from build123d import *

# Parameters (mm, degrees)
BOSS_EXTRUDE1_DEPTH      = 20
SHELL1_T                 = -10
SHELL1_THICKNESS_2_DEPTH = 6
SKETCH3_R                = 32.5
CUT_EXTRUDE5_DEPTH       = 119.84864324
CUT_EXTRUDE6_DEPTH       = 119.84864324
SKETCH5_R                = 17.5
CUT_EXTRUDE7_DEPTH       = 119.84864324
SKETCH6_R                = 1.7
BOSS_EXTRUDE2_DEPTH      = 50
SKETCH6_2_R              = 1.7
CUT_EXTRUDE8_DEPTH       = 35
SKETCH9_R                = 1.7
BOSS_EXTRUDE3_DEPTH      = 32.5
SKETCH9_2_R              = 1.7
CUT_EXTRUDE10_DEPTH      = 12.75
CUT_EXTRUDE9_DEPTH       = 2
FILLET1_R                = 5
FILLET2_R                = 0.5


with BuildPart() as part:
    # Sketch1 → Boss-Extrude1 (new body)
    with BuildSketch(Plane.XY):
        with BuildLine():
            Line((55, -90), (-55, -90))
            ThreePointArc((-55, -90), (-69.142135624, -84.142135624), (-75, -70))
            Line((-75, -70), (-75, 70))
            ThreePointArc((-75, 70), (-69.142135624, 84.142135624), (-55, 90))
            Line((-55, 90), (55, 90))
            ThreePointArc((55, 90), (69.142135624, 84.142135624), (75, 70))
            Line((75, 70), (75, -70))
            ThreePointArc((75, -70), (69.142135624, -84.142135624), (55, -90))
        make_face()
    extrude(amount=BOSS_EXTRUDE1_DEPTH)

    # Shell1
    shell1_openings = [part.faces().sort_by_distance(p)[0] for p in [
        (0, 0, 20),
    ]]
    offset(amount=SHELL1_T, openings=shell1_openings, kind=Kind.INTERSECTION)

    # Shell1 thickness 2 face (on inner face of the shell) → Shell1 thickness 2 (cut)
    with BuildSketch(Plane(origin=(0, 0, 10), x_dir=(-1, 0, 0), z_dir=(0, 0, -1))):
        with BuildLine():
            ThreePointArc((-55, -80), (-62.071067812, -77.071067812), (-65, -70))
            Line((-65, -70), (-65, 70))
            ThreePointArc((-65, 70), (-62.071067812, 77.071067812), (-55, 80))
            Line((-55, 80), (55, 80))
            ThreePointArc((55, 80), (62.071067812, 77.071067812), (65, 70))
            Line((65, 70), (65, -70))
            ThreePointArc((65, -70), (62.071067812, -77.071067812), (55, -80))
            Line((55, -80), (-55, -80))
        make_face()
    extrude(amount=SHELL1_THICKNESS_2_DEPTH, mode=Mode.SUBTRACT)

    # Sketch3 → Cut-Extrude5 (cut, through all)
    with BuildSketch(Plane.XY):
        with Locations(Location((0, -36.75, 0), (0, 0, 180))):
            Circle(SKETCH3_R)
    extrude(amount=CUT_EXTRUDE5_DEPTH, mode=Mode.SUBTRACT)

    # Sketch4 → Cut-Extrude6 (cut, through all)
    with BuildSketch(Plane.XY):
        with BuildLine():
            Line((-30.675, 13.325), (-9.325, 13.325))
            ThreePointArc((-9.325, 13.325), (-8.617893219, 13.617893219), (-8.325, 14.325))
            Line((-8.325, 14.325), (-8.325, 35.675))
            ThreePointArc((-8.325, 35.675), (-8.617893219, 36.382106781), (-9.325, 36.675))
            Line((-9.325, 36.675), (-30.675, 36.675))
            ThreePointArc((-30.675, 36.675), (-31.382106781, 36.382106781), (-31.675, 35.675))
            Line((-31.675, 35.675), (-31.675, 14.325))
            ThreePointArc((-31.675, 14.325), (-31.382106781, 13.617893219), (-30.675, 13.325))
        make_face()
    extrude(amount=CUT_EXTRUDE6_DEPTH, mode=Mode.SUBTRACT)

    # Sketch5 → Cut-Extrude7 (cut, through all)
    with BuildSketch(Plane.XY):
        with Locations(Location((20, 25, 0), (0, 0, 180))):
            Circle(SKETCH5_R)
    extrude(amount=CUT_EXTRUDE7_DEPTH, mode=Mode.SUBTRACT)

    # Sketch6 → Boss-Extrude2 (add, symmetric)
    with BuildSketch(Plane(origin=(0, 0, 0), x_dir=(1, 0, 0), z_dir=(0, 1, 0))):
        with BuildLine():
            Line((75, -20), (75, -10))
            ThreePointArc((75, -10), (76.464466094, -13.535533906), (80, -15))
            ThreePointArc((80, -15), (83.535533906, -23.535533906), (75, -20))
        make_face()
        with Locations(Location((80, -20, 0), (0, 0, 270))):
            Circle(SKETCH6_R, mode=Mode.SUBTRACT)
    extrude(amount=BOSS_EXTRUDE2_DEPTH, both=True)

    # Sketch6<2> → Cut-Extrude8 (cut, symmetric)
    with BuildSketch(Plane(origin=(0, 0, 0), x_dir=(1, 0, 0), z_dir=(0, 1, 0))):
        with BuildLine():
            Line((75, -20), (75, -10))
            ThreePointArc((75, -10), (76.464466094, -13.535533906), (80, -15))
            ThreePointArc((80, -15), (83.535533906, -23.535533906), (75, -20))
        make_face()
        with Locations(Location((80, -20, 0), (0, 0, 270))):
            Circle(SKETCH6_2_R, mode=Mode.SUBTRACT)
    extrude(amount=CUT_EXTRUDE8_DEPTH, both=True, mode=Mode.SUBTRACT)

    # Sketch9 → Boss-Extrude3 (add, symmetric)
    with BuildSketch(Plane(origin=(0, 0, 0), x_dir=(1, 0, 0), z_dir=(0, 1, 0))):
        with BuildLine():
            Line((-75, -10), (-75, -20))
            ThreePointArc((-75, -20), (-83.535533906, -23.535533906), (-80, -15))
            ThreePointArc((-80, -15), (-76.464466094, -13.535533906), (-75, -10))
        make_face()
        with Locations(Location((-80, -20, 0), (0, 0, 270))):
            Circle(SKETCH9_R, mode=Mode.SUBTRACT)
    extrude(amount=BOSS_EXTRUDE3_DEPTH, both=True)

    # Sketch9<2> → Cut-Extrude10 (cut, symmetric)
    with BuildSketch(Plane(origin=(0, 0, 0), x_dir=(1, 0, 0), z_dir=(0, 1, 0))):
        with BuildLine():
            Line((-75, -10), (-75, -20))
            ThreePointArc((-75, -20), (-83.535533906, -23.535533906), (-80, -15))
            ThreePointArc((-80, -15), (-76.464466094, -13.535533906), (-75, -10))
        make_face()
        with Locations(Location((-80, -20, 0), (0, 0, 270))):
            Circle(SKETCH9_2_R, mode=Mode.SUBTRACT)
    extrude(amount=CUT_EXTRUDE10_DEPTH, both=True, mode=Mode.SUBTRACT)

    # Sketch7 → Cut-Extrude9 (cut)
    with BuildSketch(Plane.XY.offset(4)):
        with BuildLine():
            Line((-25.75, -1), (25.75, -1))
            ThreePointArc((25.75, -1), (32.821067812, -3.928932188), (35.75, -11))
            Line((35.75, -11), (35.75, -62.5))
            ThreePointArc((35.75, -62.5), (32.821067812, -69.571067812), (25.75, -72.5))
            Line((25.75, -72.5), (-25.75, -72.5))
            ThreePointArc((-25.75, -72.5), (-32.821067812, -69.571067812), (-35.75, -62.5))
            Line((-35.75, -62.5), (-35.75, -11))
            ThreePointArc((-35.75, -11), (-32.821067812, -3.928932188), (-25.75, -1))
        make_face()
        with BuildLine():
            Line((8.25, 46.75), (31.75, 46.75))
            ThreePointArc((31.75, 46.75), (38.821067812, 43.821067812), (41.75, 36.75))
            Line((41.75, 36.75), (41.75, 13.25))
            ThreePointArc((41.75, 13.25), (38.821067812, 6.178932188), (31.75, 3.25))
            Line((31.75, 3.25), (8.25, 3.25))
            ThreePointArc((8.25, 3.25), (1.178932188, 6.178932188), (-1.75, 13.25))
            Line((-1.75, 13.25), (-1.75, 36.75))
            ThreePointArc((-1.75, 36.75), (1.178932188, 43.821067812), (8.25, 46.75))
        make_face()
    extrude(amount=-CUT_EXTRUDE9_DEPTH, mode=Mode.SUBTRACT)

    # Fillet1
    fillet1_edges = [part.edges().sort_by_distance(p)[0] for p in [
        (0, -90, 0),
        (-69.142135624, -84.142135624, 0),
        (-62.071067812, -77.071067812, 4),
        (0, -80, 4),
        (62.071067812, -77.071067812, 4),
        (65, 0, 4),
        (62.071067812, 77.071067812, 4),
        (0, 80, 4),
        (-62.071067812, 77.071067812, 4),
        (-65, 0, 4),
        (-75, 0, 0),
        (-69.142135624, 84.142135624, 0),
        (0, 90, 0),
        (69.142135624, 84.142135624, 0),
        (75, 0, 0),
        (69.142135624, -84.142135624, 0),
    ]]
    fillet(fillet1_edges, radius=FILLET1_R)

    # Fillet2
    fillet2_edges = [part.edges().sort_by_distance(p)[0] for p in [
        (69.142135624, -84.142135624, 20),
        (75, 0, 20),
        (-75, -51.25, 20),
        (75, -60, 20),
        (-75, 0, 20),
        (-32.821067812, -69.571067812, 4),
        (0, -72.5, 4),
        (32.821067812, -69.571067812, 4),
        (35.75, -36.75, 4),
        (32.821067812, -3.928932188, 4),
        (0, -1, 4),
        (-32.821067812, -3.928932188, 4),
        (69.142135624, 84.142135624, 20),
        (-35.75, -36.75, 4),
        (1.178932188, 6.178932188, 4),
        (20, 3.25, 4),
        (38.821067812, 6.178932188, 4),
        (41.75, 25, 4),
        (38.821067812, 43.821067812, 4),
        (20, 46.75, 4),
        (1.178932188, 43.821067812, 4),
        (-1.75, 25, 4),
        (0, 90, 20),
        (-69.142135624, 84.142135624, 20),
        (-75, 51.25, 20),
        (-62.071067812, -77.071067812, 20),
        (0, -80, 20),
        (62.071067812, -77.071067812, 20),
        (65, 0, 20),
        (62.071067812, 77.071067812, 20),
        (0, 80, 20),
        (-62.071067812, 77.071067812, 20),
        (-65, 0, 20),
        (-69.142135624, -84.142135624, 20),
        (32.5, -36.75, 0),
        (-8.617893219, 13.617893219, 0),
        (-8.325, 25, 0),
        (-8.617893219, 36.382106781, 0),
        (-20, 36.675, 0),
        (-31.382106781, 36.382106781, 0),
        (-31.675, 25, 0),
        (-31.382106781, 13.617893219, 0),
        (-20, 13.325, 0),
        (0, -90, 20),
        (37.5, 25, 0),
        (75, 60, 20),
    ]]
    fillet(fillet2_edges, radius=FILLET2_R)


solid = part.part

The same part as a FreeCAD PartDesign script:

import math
import FreeCAD as App
import Part
import Sketcher
Q = App.Units.Quantity


def edges_at(feature, points):
    """Names of the edges that pass closest to the given points."""
    edges = feature.Shape.Edges
    near = lambda p: min(range(len(edges)), key=lambda i: edges[i].distToShape(Part.Vertex(*p))[0])
    return sorted({f"Edge{near(p) + 1}" for p in points})


def faces_at(feature, points):
    """Names of the faces that lie closest to the given points."""
    faces = feature.Shape.Faces
    near = lambda p: min(range(len(faces)), key=lambda i: faces[i].distToShape(Part.Vertex(*p))[0])
    return sorted({f"Face{near(p) + 1}" for p in points})

doc = App.newDocument("Part")
body = doc.addObject("PartDesign::Body", "Body")

# Sketch on XY plane
sketch1 = body.newObject("Sketcher::SketchObject", "Sketch")
sketch1.AttachmentSupport = (doc.getObject("XY_Plane"), [""])
sketch1.MapMode = "FlatFace"
sketch1.addGeometry([
    Part.LineSegment(App.Vector(-55, -90, 0), App.Vector(55, -90, 0)),  # 0
    Part.ArcOfCircle(Part.Circle(App.Vector(55, -70, 0), App.Vector(0, 0, 1), 20), math.radians(-90), math.radians(0)),  # 1
    Part.LineSegment(App.Vector(75, -70, 0), App.Vector(75, 70, 0)),  # 2
    Part.ArcOfCircle(Part.Circle(App.Vector(55, 70, 0), App.Vector(0, 0, 1), 20), math.radians(0), math.radians(90)),  # 3
    Part.LineSegment(App.Vector(55, 90, 0), App.Vector(-55, 90, 0)),  # 4
    Part.ArcOfCircle(Part.Circle(App.Vector(-55, 70, 0), App.Vector(0, 0, 1), 20), math.radians(90), math.radians(180)),  # 5
    Part.LineSegment(App.Vector(-75, 70, 0), App.Vector(-75, -70, 0)),  # 6
    Part.ArcOfCircle(Part.Circle(App.Vector(-55, -70, 0), App.Vector(0, 0, 1), 20), math.radians(180), math.radians(270)),  # 7
], False)
sketch1.addConstraint([
    Sketcher.Constraint("Tangent", 0, 2, 1, 1),
    Sketcher.Constraint("Tangent", 1, 2, 2, 1),
    Sketcher.Constraint("Tangent", 2, 2, 3, 1),
    Sketcher.Constraint("Tangent", 3, 2, 4, 1),
    Sketcher.Constraint("Tangent", 4, 2, 5, 1),
    Sketcher.Constraint("Tangent", 5, 2, 6, 1),
    Sketcher.Constraint("Tangent", 6, 2, 7, 1),
    Sketcher.Constraint("Tangent", 7, 2, 0, 1),
    Sketcher.Constraint("Horizontal", 0),
    Sketcher.Constraint("Vertical", 2),
    Sketcher.Constraint("Horizontal", 4),
    Sketcher.Constraint("Vertical", 6),
    Sketcher.Constraint("Equal", 1, 3),
    Sketcher.Constraint("Equal", 3, 5),
    Sketcher.Constraint("Equal", 5, 7),
    Sketcher.Constraint("Symmetric", 1, 3, 5, 3, -1, 1),
    Sketcher.Constraint("Radius", 1, Q("20 mm")),
    Sketcher.Constraint("DistanceX", 0, 1, 0, 2, Q("110 mm")),
    Sketcher.Constraint("DistanceY", 2, 1, 2, 2, Q("140 mm")),
])
pad1 = body.newObject("PartDesign::Pad", "Pad")
pad1.Profile = sketch1
pad1.Length = 20
doc.recompute()

thickness = body.newObject("PartDesign::Thickness", "Thickness")
thickness.Base = (pad1, faces_at(pad1, [(0, 0, 20)]))
thickness.Value = 10
thickness.Reversed = True
thickness.Join = "Intersection"

# Sketch on XY plane
sketch2 = body.newObject("Sketcher::SketchObject", "Sketch001")
sketch2.AttachmentSupport = (doc.getObject("XY_Plane"), [""])
sketch2.MapMode = "FlatFace"
sketch2.AttachmentOffset = App.Placement(App.Vector(0, 0, 10), App.Rotation())
sketch2.addGeometry([
    Part.ArcOfCircle(Part.Circle(App.Vector(55, -70, 0), App.Vector(0, 0, 1), 10), math.radians(-90), math.radians(0)),  # 0
    Part.LineSegment(App.Vector(55, -80, 0), App.Vector(-55, -80, 0)),  # 1
    Part.ArcOfCircle(Part.Circle(App.Vector(-55, -70, 0), App.Vector(0, 0, 1), 10), math.radians(180), math.radians(270)),  # 2
    Part.LineSegment(App.Vector(-65, -70, 0), App.Vector(-65, 70, 0)),  # 3
    Part.ArcOfCircle(Part.Circle(App.Vector(-55, 70, 0), App.Vector(0, 0, 1), 10), math.radians(90), math.radians(180)),  # 4
    Part.LineSegment(App.Vector(-55, 80, 0), App.Vector(55, 80, 0)),  # 5
    Part.ArcOfCircle(Part.Circle(App.Vector(55, 70, 0), App.Vector(0, 0, 1), 10), math.radians(0), math.radians(90)),  # 6
    Part.LineSegment(App.Vector(65, 70, 0), App.Vector(65, -70, 0)),  # 7
], False)
sketch2.addConstraint([
    Sketcher.Constraint("Tangent", 0, 1, 1, 1),
    Sketcher.Constraint("Tangent", 1, 2, 2, 2),
    Sketcher.Constraint("Tangent", 2, 1, 3, 1),
    Sketcher.Constraint("Tangent", 3, 2, 4, 2),
    Sketcher.Constraint("Tangent", 4, 1, 5, 1),
    Sketcher.Constraint("Tangent", 5, 2, 6, 2),
    Sketcher.Constraint("Tangent", 6, 1, 7, 1),
    Sketcher.Constraint("Tangent", 7, 2, 0, 2),
    Sketcher.Constraint("Horizontal", 1),
    Sketcher.Constraint("Vertical", 3),
    Sketcher.Constraint("Horizontal", 5),
    Sketcher.Constraint("Vertical", 7),
    Sketcher.Constraint("Equal", 0, 2),
    Sketcher.Constraint("Equal", 2, 4),
    Sketcher.Constraint("Equal", 4, 6),
    Sketcher.Constraint("Symmetric", 0, 3, 4, 3, -1, 1),
    Sketcher.Constraint("Radius", 0, Q("10 mm")),
    Sketcher.Constraint("DistanceX", 1, 2, 1, 1, Q("110 mm")),
    Sketcher.Constraint("DistanceY", 3, 1, 3, 2, Q("140 mm")),
])
pocket1 = body.newObject("PartDesign::Pocket", "Pocket")
pocket1.Profile = sketch2
pocket1.Length = 6

# Sketch on XY plane
sketch3 = body.newObject("Sketcher::SketchObject", "Sketch002")
sketch3.AttachmentSupport = (doc.getObject("XY_Plane"), [""])
sketch3.MapMode = "FlatFace"
sketch3.addGeometry(Part.Circle(App.Vector(0, -36.75, 0), App.Vector(0, 0, 1), 32.5), False)
sketch3.addConstraint([
    Sketcher.Constraint("PointOnObject", 0, 3, -2),
    Sketcher.Constraint("Diameter", 0, Q("65 mm")),
    Sketcher.Constraint("DistanceY", 0, 3, -1, 1, Q("36.75 mm")),
])
pocket2 = body.newObject("PartDesign::Pocket", "Pocket001")
pocket2.Profile = sketch3
pocket2.Type = "ThroughAll"
pocket2.Reversed = True

# Sketch on XY plane
sketch4 = body.newObject("Sketcher::SketchObject", "Sketch003")
sketch4.AttachmentSupport = (doc.getObject("XY_Plane"), [""])
sketch4.MapMode = "FlatFace"
sketch4.addGeometry([
    Part.LineSegment(App.Vector(-30.675, 13.325, 0), App.Vector(-9.325, 13.325, 0)),  # 0
    Part.ArcOfCircle(Part.Circle(App.Vector(-9.325, 14.325, 0), App.Vector(0, 0, 1), 1), math.radians(-90), math.radians(0)),  # 1
    Part.LineSegment(App.Vector(-8.325, 14.325, 0), App.Vector(-8.325, 35.675, 0)),  # 2
    Part.ArcOfCircle(Part.Circle(App.Vector(-9.325, 35.675, 0), App.Vector(0, 0, 1), 1), math.radians(0), math.radians(90)),  # 3
    Part.LineSegment(App.Vector(-9.325, 36.675, 0), App.Vector(-30.675, 36.675, 0)),  # 4
    Part.ArcOfCircle(Part.Circle(App.Vector(-30.675, 35.675, 0), App.Vector(0, 0, 1), 1), math.radians(90), math.radians(180)),  # 5
    Part.LineSegment(App.Vector(-31.675, 35.675, 0), App.Vector(-31.675, 14.325, 0)),  # 6
    Part.ArcOfCircle(Part.Circle(App.Vector(-30.675, 14.325, 0), App.Vector(0, 0, 1), 1), math.radians(-180), math.radians(-90)),  # 7
], False)
sketch4.addConstraint([
    Sketcher.Constraint("Tangent", 0, 2, 1, 1),
    Sketcher.Constraint("Tangent", 1, 2, 2, 1),
    Sketcher.Constraint("Tangent", 2, 2, 3, 1),
    Sketcher.Constraint("Tangent", 3, 2, 4, 1),
    Sketcher.Constraint("Tangent", 4, 2, 5, 1),
    Sketcher.Constraint("Tangent", 5, 2, 6, 1),
    Sketcher.Constraint("Tangent", 6, 2, 7, 1),
    Sketcher.Constraint("Tangent", 7, 2, 0, 1),
    Sketcher.Constraint("Horizontal", 0),
    Sketcher.Constraint("Vertical", 2),
    Sketcher.Constraint("Horizontal", 4),
    Sketcher.Constraint("Vertical", 6),
    Sketcher.Constraint("Equal", 1, 3),
    Sketcher.Constraint("Equal", 3, 5),
    Sketcher.Constraint("Equal", 5, 7),
    Sketcher.Constraint("Equal", 4, 2),
    Sketcher.Constraint("Radius", 1, Q("1 mm")),
    Sketcher.Constraint("DistanceX", 0, 1, 0, 2, Q("21.35 mm")),
    Sketcher.Constraint("DistanceX", 1, 3, -1, 1, Q("9.325 mm")),
    Sketcher.Constraint("DistanceY", -1, 1, 1, 3, Q("14.325 mm")),
])
pocket3 = body.newObject("PartDesign::Pocket", "Pocket002")
pocket3.Profile = sketch4
pocket3.Type = "ThroughAll"
pocket3.Reversed = True

# Sketch on XY plane
sketch5 = body.newObject("Sketcher::SketchObject", "Sketch004")
sketch5.AttachmentSupport = (doc.getObject("XY_Plane"), [""])
sketch5.MapMode = "FlatFace"
sketch5.addGeometry(Part.Circle(App.Vector(20, 25, 0), App.Vector(0, 0, 1), 17.5), False)
sketch5.addConstraint([
    Sketcher.Constraint("Diameter", 0, Q("35 mm")),
    Sketcher.Constraint("DistanceX", -1, 1, 0, 3, Q("20 mm")),
    Sketcher.Constraint("DistanceY", -1, 1, 0, 3, Q("25 mm")),
])
pocket4 = body.newObject("PartDesign::Pocket", "Pocket003")
pocket4.Profile = sketch5
pocket4.Type = "ThroughAll"
pocket4.Reversed = True

# Sketch on XZ plane
sketch6 = body.newObject("Sketcher::SketchObject", "Sketch005")
sketch6.AttachmentSupport = (doc.getObject("XZ_Plane"), [""])
sketch6.MapMode = "FlatFace"
sketch6.addGeometry([
    Part.LineSegment(App.Vector(75, 10, 0), App.Vector(75, 20, 0)),
    Part.ArcOfCircle(Part.Circle(App.Vector(80, 20, 0), App.Vector(0, 0, 1), 5), math.radians(-90), math.radians(180)),
    Part.ArcOfCircle(Part.Circle(App.Vector(80, 10, 0), App.Vector(0, 0, 1), 5), math.radians(90), math.radians(180)),
    Part.Circle(App.Vector(80, 20, 0), App.Vector(0, 0, 1), 1.7),
], False)
sketch6.addConstraint([
    Sketcher.Constraint("Tangent", 0, 2, 1, 2),
    Sketcher.Constraint("Tangent", 1, 1, 2, 1),
    Sketcher.Constraint("Tangent", 2, 2, 0, 1),
    Sketcher.Constraint("Vertical", 0),
    Sketcher.Constraint("Coincident", 3, 3, 1, 3),
    Sketcher.Constraint("Equal", 1, 2),
    Sketcher.Constraint("Radius", 1, Q("5 mm")),
    Sketcher.Constraint("Diameter", 3, Q("3.4 mm")),
    Sketcher.Constraint("DistanceX", -1, 1, 1, 3, Q("80 mm")),
    Sketcher.Constraint("DistanceY", -1, 1, 1, 3, Q("20 mm")),
])
pad2 = body.newObject("PartDesign::Pad", "Pad001")
pad2.Profile = sketch6
pad2.Length = 100
pad2.Midplane = True

# Sketch on XZ plane
sketch7 = body.newObject("Sketcher::SketchObject", "Sketch006")
sketch7.AttachmentSupport = (doc.getObject("XZ_Plane"), [""])
sketch7.MapMode = "FlatFace"
sketch7.addGeometry([
    Part.LineSegment(App.Vector(75, 10, 0), App.Vector(75, 20, 0)),
    Part.ArcOfCircle(Part.Circle(App.Vector(80, 20, 0), App.Vector(0, 0, 1), 5), math.radians(-90), math.radians(180)),
    Part.ArcOfCircle(Part.Circle(App.Vector(80, 10, 0), App.Vector(0, 0, 1), 5), math.radians(90), math.radians(180)),
    Part.Circle(App.Vector(80, 20, 0), App.Vector(0, 0, 1), 1.7),
], False)
sketch7.addConstraint([
    Sketcher.Constraint("Tangent", 0, 2, 1, 2),
    Sketcher.Constraint("Tangent", 1, 1, 2, 1),
    Sketcher.Constraint("Tangent", 2, 2, 0, 1),
    Sketcher.Constraint("Vertical", 0),
    Sketcher.Constraint("Coincident", 3, 3, 1, 3),
    Sketcher.Constraint("Equal", 1, 2),
    Sketcher.Constraint("Radius", 1, Q("5 mm")),
    Sketcher.Constraint("Diameter", 3, Q("3.4 mm")),
    Sketcher.Constraint("DistanceX", -1, 1, 1, 3, Q("80 mm")),
    Sketcher.Constraint("DistanceY", -1, 1, 1, 3, Q("20 mm")),
])
pocket5 = body.newObject("PartDesign::Pocket", "Pocket004")
pocket5.Profile = sketch7
pocket5.Length = 70
pocket5.Midplane = True

# Sketch on XZ plane
sketch8 = body.newObject("Sketcher::SketchObject", "Sketch007")
sketch8.AttachmentSupport = (doc.getObject("XZ_Plane"), [""])
sketch8.MapMode = "FlatFace"
sketch8.addGeometry([
    Part.LineSegment(App.Vector(-75, 20, 0), App.Vector(-75, 10, 0)),
    Part.ArcOfCircle(Part.Circle(App.Vector(-80, 10, 0), App.Vector(0, 0, 1), 5), math.radians(0), math.radians(90)),
    Part.ArcOfCircle(Part.Circle(App.Vector(-80, 20, 0), App.Vector(0, 0, 1), 5), math.radians(0), math.radians(270)),
    Part.Circle(App.Vector(-80, 20, 0), App.Vector(0, 0, 1), 1.7),
], False)
sketch8.addConstraint([
    Sketcher.Constraint("Tangent", 0, 2, 1, 1),
    Sketcher.Constraint("Tangent", 1, 2, 2, 2),
    Sketcher.Constraint("Tangent", 2, 1, 0, 1),
    Sketcher.Constraint("Vertical", 0),
    Sketcher.Constraint("Coincident", 3, 3, 2, 3),
    Sketcher.Constraint("Equal", 1, 2),
    Sketcher.Constraint("Radius", 1, Q("5 mm")),
    Sketcher.Constraint("Diameter", 3, Q("3.4 mm")),
    Sketcher.Constraint("DistanceX", 1, 3, -1, 1, Q("80 mm")),
    Sketcher.Constraint("DistanceY", -1, 1, 1, 3, Q("10 mm")),
])
pad3 = body.newObject("PartDesign::Pad", "Pad002")
pad3.Profile = sketch8
pad3.Length = 65
pad3.Midplane = True

# Sketch on XZ plane
sketch9 = body.newObject("Sketcher::SketchObject", "Sketch008")
sketch9.AttachmentSupport = (doc.getObject("XZ_Plane"), [""])
sketch9.MapMode = "FlatFace"
sketch9.addGeometry([
    Part.LineSegment(App.Vector(-75, 20, 0), App.Vector(-75, 10, 0)),
    Part.ArcOfCircle(Part.Circle(App.Vector(-80, 10, 0), App.Vector(0, 0, 1), 5), math.radians(0), math.radians(90)),
    Part.ArcOfCircle(Part.Circle(App.Vector(-80, 20, 0), App.Vector(0, 0, 1), 5), math.radians(0), math.radians(270)),
    Part.Circle(App.Vector(-80, 20, 0), App.Vector(0, 0, 1), 1.7),
], False)
sketch9.addConstraint([
    Sketcher.Constraint("Tangent", 0, 2, 1, 1),
    Sketcher.Constraint("Tangent", 1, 2, 2, 2),
    Sketcher.Constraint("Tangent", 2, 1, 0, 1),
    Sketcher.Constraint("Vertical", 0),
    Sketcher.Constraint("Coincident", 3, 3, 2, 3),
    Sketcher.Constraint("Equal", 1, 2),
    Sketcher.Constraint("Radius", 1, Q("5 mm")),
    Sketcher.Constraint("Diameter", 3, Q("3.4 mm")),
    Sketcher.Constraint("DistanceX", 1, 3, -1, 1, Q("80 mm")),
    Sketcher.Constraint("DistanceY", -1, 1, 1, 3, Q("10 mm")),
])
pocket6 = body.newObject("PartDesign::Pocket", "Pocket005")
pocket6.Profile = sketch9
pocket6.Length = 25.5
pocket6.Midplane = True

# Sketch on XY plane
sketch10 = body.newObject("Sketcher::SketchObject", "Sketch009")
sketch10.AttachmentSupport = (doc.getObject("XY_Plane"), [""])
sketch10.MapMode = "FlatFace"
sketch10.AttachmentOffset = App.Placement(App.Vector(0, 0, 4), App.Rotation())
sketch10.addGeometry([
    Part.LineSegment(App.Vector(25.75, -1, 0), App.Vector(-25.75, -1, 0)),  # 0
    Part.ArcOfCircle(Part.Circle(App.Vector(-25.75, -11, 0), App.Vector(0, 0, 1), 10), math.radians(90), math.radians(180)),  # 1
    Part.LineSegment(App.Vector(-35.75, -11, 0), App.Vector(-35.75, -62.5, 0)),  # 2
    Part.ArcOfCircle(Part.Circle(App.Vector(-25.75, -62.5, 0), App.Vector(0, 0, 1), 10), math.radians(180), math.radians(270)),  # 3
    Part.LineSegment(App.Vector(-25.75, -72.5, 0), App.Vector(25.75, -72.5, 0)),  # 4
    Part.ArcOfCircle(Part.Circle(App.Vector(25.75, -62.5, 0), App.Vector(0, 0, 1), 10), math.radians(-90), math.radians(0)),  # 5
    Part.LineSegment(App.Vector(35.75, -62.5, 0), App.Vector(35.75, -11, 0)),  # 6
    Part.ArcOfCircle(Part.Circle(App.Vector(25.75, -11, 0), App.Vector(0, 0, 1), 10), math.radians(0), math.radians(90)),  # 7
    Part.LineSegment(App.Vector(31.75, 46.75, 0), App.Vector(8.25, 46.75, 0)),  # 8
    Part.ArcOfCircle(Part.Circle(App.Vector(8.25, 36.75, 0), App.Vector(0, 0, 1), 10), math.radians(90), math.radians(180)),  # 9
    Part.LineSegment(App.Vector(-1.75, 36.75, 0), App.Vector(-1.75, 13.25, 0)),  # 10
    Part.ArcOfCircle(Part.Circle(App.Vector(8.25, 13.25, 0), App.Vector(0, 0, 1), 10), math.radians(180), math.radians(270)),  # 11
    Part.LineSegment(App.Vector(8.25, 3.25, 0), App.Vector(31.75, 3.25, 0)),  # 12
    Part.ArcOfCircle(Part.Circle(App.Vector(31.75, 13.25, 0), App.Vector(0, 0, 1), 10), math.radians(-90), math.radians(0)),  # 13
    Part.LineSegment(App.Vector(41.75, 13.25, 0), App.Vector(41.75, 36.75, 0)),  # 14
    Part.ArcOfCircle(Part.Circle(App.Vector(31.75, 36.75, 0), App.Vector(0, 0, 1), 10), math.radians(0), math.radians(90)),  # 15
], False)
sketch10.addConstraint([
    Sketcher.Constraint("Tangent", 0, 2, 1, 1),
    Sketcher.Constraint("Tangent", 1, 2, 2, 1),
    Sketcher.Constraint("Tangent", 2, 2, 3, 1),
    Sketcher.Constraint("Tangent", 3, 2, 4, 1),
    Sketcher.Constraint("Tangent", 4, 2, 5, 1),
    Sketcher.Constraint("Tangent", 5, 2, 6, 1),
    Sketcher.Constraint("Tangent", 6, 2, 7, 1),
    Sketcher.Constraint("Tangent", 7, 2, 0, 1),
    Sketcher.Constraint("Tangent", 8, 2, 9, 1),
    Sketcher.Constraint("Tangent", 9, 2, 10, 1),
    Sketcher.Constraint("Tangent", 10, 2, 11, 1),
    Sketcher.Constraint("Tangent", 11, 2, 12, 1),
    Sketcher.Constraint("Tangent", 12, 2, 13, 1),
    Sketcher.Constraint("Tangent", 13, 2, 14, 1),
    Sketcher.Constraint("Tangent", 14, 2, 15, 1),
    Sketcher.Constraint("Tangent", 15, 2, 8, 1),
    Sketcher.Constraint("Horizontal", 0),
    Sketcher.Constraint("Vertical", 2),
    Sketcher.Constraint("Horizontal", 4),
    Sketcher.Constraint("Vertical", 6),
    Sketcher.Constraint("Horizontal", 8),
    Sketcher.Constraint("Vertical", 10),
    Sketcher.Constraint("Horizontal", 12),
    Sketcher.Constraint("Vertical", 14),
    Sketcher.Constraint("Equal", 1, 3),
    Sketcher.Constraint("Equal", 3, 5),
    Sketcher.Constraint("Equal", 5, 7),
    Sketcher.Constraint("Equal", 7, 9),
    Sketcher.Constraint("Equal", 9, 11),
    Sketcher.Constraint("Equal", 11, 13),
    Sketcher.Constraint("Equal", 13, 15),
    Sketcher.Constraint("Equal", 4, 2),
    Sketcher.Constraint("Equal", 12, 10),
    Sketcher.Constraint("Radius", 1, Q("10 mm")),
    Sketcher.Constraint("DistanceX", 0, 2, 0, 1, Q("51.5 mm")),
    Sketcher.Constraint("DistanceX", 8, 2, 8, 1, Q("23.5 mm")),
    Sketcher.Constraint("DistanceY", 1, 3, -1, 1, Q("11 mm")),
    Sketcher.Constraint("DistanceX", 1, 3, 9, 3, Q("34 mm")),
    Sketcher.Constraint("DistanceX", 1, 3, -1, 1, Q("25.75 mm")),
    Sketcher.Constraint("DistanceY", -1, 1, 9, 3, Q("36.75 mm")),
])
pocket7 = body.newObject("PartDesign::Pocket", "Pocket006")
pocket7.Profile = sketch10
pocket7.Length = 2
doc.recompute()

fillet = body.newObject("PartDesign::Fillet", "Fillet")
fillet.Base = (pocket7, edges_at(pocket7, [
    (0, -90, 0),
    (-69.142, -84.142, 0),
    (-62.071, -77.071, 4),
    (0, -80, 4),
    (62.071, -77.071, 4),
    (65, 0, 4),
    (62.071, 77.071, 4),
    (0, 80, 4),
    (-62.071, 77.071, 4),
    (-65, 0, 4),
    (-75, 0, 0),
    (-69.142, 84.142, 0),
    (0, 90, 0),
    (69.142, 84.142, 0),
    (75, 0, 0),
    (69.142, -84.142, 0),
]))
fillet.Radius = 5
doc.recompute()

fillet2 = body.newObject("PartDesign::Fillet", "Fillet001")
fillet2.Base = (fillet, edges_at(fillet, [
    (69.142, -84.142, 20),
    (75, 0, 20),
    (-75, -51.25, 20),
    (75, -60, 20),
    (-75, 0, 20),
    (-32.821, -69.571, 4),
    (0, -72.5, 4),
    (32.821, -69.571, 4),
    (35.75, -36.75, 4),
    (32.821, -3.929, 4),
    (0, -1, 4),
    (-32.821, -3.929, 4),
    (69.142, 84.142, 20),
    (-35.75, -36.75, 4),
    (1.179, 6.179, 4),
    (20, 3.25, 4),
    (38.821, 6.179, 4),
    (41.75, 25, 4),
    (38.821, 43.821, 4),
    (20, 46.75, 4),
    (1.179, 43.821, 4),
    (-1.75, 25, 4),
    (0, 90, 20),
    (-69.142, 84.142, 20),
    (-75, 51.25, 20),
    (-62.071, -77.071, 20),
    (0, -80, 20),
    (62.071, -77.071, 20),
    (65, 0, 20),
    (62.071, 77.071, 20),
    (0, 80, 20),
    (-62.071, 77.071, 20),
    (-65, 0, 20),
    (-69.142, -84.142, 20),
    (32.5, -36.75, 0),
    (-8.618, 13.618, 0),
    (-8.325, 25, 0),
    (-8.618, 36.382, 0),
    (-20, 36.675, 0),
    (-31.382, 36.382, 0),
    (-31.675, 25, 0),
    (-31.382, 13.618, 0),
    (-20, 13.325, 0),
    (0, -90, 20),
    (37.5, 25, 0),
    (75, 60, 20),
]))
fillet2.Radius = 0.5

doc.recompute()
